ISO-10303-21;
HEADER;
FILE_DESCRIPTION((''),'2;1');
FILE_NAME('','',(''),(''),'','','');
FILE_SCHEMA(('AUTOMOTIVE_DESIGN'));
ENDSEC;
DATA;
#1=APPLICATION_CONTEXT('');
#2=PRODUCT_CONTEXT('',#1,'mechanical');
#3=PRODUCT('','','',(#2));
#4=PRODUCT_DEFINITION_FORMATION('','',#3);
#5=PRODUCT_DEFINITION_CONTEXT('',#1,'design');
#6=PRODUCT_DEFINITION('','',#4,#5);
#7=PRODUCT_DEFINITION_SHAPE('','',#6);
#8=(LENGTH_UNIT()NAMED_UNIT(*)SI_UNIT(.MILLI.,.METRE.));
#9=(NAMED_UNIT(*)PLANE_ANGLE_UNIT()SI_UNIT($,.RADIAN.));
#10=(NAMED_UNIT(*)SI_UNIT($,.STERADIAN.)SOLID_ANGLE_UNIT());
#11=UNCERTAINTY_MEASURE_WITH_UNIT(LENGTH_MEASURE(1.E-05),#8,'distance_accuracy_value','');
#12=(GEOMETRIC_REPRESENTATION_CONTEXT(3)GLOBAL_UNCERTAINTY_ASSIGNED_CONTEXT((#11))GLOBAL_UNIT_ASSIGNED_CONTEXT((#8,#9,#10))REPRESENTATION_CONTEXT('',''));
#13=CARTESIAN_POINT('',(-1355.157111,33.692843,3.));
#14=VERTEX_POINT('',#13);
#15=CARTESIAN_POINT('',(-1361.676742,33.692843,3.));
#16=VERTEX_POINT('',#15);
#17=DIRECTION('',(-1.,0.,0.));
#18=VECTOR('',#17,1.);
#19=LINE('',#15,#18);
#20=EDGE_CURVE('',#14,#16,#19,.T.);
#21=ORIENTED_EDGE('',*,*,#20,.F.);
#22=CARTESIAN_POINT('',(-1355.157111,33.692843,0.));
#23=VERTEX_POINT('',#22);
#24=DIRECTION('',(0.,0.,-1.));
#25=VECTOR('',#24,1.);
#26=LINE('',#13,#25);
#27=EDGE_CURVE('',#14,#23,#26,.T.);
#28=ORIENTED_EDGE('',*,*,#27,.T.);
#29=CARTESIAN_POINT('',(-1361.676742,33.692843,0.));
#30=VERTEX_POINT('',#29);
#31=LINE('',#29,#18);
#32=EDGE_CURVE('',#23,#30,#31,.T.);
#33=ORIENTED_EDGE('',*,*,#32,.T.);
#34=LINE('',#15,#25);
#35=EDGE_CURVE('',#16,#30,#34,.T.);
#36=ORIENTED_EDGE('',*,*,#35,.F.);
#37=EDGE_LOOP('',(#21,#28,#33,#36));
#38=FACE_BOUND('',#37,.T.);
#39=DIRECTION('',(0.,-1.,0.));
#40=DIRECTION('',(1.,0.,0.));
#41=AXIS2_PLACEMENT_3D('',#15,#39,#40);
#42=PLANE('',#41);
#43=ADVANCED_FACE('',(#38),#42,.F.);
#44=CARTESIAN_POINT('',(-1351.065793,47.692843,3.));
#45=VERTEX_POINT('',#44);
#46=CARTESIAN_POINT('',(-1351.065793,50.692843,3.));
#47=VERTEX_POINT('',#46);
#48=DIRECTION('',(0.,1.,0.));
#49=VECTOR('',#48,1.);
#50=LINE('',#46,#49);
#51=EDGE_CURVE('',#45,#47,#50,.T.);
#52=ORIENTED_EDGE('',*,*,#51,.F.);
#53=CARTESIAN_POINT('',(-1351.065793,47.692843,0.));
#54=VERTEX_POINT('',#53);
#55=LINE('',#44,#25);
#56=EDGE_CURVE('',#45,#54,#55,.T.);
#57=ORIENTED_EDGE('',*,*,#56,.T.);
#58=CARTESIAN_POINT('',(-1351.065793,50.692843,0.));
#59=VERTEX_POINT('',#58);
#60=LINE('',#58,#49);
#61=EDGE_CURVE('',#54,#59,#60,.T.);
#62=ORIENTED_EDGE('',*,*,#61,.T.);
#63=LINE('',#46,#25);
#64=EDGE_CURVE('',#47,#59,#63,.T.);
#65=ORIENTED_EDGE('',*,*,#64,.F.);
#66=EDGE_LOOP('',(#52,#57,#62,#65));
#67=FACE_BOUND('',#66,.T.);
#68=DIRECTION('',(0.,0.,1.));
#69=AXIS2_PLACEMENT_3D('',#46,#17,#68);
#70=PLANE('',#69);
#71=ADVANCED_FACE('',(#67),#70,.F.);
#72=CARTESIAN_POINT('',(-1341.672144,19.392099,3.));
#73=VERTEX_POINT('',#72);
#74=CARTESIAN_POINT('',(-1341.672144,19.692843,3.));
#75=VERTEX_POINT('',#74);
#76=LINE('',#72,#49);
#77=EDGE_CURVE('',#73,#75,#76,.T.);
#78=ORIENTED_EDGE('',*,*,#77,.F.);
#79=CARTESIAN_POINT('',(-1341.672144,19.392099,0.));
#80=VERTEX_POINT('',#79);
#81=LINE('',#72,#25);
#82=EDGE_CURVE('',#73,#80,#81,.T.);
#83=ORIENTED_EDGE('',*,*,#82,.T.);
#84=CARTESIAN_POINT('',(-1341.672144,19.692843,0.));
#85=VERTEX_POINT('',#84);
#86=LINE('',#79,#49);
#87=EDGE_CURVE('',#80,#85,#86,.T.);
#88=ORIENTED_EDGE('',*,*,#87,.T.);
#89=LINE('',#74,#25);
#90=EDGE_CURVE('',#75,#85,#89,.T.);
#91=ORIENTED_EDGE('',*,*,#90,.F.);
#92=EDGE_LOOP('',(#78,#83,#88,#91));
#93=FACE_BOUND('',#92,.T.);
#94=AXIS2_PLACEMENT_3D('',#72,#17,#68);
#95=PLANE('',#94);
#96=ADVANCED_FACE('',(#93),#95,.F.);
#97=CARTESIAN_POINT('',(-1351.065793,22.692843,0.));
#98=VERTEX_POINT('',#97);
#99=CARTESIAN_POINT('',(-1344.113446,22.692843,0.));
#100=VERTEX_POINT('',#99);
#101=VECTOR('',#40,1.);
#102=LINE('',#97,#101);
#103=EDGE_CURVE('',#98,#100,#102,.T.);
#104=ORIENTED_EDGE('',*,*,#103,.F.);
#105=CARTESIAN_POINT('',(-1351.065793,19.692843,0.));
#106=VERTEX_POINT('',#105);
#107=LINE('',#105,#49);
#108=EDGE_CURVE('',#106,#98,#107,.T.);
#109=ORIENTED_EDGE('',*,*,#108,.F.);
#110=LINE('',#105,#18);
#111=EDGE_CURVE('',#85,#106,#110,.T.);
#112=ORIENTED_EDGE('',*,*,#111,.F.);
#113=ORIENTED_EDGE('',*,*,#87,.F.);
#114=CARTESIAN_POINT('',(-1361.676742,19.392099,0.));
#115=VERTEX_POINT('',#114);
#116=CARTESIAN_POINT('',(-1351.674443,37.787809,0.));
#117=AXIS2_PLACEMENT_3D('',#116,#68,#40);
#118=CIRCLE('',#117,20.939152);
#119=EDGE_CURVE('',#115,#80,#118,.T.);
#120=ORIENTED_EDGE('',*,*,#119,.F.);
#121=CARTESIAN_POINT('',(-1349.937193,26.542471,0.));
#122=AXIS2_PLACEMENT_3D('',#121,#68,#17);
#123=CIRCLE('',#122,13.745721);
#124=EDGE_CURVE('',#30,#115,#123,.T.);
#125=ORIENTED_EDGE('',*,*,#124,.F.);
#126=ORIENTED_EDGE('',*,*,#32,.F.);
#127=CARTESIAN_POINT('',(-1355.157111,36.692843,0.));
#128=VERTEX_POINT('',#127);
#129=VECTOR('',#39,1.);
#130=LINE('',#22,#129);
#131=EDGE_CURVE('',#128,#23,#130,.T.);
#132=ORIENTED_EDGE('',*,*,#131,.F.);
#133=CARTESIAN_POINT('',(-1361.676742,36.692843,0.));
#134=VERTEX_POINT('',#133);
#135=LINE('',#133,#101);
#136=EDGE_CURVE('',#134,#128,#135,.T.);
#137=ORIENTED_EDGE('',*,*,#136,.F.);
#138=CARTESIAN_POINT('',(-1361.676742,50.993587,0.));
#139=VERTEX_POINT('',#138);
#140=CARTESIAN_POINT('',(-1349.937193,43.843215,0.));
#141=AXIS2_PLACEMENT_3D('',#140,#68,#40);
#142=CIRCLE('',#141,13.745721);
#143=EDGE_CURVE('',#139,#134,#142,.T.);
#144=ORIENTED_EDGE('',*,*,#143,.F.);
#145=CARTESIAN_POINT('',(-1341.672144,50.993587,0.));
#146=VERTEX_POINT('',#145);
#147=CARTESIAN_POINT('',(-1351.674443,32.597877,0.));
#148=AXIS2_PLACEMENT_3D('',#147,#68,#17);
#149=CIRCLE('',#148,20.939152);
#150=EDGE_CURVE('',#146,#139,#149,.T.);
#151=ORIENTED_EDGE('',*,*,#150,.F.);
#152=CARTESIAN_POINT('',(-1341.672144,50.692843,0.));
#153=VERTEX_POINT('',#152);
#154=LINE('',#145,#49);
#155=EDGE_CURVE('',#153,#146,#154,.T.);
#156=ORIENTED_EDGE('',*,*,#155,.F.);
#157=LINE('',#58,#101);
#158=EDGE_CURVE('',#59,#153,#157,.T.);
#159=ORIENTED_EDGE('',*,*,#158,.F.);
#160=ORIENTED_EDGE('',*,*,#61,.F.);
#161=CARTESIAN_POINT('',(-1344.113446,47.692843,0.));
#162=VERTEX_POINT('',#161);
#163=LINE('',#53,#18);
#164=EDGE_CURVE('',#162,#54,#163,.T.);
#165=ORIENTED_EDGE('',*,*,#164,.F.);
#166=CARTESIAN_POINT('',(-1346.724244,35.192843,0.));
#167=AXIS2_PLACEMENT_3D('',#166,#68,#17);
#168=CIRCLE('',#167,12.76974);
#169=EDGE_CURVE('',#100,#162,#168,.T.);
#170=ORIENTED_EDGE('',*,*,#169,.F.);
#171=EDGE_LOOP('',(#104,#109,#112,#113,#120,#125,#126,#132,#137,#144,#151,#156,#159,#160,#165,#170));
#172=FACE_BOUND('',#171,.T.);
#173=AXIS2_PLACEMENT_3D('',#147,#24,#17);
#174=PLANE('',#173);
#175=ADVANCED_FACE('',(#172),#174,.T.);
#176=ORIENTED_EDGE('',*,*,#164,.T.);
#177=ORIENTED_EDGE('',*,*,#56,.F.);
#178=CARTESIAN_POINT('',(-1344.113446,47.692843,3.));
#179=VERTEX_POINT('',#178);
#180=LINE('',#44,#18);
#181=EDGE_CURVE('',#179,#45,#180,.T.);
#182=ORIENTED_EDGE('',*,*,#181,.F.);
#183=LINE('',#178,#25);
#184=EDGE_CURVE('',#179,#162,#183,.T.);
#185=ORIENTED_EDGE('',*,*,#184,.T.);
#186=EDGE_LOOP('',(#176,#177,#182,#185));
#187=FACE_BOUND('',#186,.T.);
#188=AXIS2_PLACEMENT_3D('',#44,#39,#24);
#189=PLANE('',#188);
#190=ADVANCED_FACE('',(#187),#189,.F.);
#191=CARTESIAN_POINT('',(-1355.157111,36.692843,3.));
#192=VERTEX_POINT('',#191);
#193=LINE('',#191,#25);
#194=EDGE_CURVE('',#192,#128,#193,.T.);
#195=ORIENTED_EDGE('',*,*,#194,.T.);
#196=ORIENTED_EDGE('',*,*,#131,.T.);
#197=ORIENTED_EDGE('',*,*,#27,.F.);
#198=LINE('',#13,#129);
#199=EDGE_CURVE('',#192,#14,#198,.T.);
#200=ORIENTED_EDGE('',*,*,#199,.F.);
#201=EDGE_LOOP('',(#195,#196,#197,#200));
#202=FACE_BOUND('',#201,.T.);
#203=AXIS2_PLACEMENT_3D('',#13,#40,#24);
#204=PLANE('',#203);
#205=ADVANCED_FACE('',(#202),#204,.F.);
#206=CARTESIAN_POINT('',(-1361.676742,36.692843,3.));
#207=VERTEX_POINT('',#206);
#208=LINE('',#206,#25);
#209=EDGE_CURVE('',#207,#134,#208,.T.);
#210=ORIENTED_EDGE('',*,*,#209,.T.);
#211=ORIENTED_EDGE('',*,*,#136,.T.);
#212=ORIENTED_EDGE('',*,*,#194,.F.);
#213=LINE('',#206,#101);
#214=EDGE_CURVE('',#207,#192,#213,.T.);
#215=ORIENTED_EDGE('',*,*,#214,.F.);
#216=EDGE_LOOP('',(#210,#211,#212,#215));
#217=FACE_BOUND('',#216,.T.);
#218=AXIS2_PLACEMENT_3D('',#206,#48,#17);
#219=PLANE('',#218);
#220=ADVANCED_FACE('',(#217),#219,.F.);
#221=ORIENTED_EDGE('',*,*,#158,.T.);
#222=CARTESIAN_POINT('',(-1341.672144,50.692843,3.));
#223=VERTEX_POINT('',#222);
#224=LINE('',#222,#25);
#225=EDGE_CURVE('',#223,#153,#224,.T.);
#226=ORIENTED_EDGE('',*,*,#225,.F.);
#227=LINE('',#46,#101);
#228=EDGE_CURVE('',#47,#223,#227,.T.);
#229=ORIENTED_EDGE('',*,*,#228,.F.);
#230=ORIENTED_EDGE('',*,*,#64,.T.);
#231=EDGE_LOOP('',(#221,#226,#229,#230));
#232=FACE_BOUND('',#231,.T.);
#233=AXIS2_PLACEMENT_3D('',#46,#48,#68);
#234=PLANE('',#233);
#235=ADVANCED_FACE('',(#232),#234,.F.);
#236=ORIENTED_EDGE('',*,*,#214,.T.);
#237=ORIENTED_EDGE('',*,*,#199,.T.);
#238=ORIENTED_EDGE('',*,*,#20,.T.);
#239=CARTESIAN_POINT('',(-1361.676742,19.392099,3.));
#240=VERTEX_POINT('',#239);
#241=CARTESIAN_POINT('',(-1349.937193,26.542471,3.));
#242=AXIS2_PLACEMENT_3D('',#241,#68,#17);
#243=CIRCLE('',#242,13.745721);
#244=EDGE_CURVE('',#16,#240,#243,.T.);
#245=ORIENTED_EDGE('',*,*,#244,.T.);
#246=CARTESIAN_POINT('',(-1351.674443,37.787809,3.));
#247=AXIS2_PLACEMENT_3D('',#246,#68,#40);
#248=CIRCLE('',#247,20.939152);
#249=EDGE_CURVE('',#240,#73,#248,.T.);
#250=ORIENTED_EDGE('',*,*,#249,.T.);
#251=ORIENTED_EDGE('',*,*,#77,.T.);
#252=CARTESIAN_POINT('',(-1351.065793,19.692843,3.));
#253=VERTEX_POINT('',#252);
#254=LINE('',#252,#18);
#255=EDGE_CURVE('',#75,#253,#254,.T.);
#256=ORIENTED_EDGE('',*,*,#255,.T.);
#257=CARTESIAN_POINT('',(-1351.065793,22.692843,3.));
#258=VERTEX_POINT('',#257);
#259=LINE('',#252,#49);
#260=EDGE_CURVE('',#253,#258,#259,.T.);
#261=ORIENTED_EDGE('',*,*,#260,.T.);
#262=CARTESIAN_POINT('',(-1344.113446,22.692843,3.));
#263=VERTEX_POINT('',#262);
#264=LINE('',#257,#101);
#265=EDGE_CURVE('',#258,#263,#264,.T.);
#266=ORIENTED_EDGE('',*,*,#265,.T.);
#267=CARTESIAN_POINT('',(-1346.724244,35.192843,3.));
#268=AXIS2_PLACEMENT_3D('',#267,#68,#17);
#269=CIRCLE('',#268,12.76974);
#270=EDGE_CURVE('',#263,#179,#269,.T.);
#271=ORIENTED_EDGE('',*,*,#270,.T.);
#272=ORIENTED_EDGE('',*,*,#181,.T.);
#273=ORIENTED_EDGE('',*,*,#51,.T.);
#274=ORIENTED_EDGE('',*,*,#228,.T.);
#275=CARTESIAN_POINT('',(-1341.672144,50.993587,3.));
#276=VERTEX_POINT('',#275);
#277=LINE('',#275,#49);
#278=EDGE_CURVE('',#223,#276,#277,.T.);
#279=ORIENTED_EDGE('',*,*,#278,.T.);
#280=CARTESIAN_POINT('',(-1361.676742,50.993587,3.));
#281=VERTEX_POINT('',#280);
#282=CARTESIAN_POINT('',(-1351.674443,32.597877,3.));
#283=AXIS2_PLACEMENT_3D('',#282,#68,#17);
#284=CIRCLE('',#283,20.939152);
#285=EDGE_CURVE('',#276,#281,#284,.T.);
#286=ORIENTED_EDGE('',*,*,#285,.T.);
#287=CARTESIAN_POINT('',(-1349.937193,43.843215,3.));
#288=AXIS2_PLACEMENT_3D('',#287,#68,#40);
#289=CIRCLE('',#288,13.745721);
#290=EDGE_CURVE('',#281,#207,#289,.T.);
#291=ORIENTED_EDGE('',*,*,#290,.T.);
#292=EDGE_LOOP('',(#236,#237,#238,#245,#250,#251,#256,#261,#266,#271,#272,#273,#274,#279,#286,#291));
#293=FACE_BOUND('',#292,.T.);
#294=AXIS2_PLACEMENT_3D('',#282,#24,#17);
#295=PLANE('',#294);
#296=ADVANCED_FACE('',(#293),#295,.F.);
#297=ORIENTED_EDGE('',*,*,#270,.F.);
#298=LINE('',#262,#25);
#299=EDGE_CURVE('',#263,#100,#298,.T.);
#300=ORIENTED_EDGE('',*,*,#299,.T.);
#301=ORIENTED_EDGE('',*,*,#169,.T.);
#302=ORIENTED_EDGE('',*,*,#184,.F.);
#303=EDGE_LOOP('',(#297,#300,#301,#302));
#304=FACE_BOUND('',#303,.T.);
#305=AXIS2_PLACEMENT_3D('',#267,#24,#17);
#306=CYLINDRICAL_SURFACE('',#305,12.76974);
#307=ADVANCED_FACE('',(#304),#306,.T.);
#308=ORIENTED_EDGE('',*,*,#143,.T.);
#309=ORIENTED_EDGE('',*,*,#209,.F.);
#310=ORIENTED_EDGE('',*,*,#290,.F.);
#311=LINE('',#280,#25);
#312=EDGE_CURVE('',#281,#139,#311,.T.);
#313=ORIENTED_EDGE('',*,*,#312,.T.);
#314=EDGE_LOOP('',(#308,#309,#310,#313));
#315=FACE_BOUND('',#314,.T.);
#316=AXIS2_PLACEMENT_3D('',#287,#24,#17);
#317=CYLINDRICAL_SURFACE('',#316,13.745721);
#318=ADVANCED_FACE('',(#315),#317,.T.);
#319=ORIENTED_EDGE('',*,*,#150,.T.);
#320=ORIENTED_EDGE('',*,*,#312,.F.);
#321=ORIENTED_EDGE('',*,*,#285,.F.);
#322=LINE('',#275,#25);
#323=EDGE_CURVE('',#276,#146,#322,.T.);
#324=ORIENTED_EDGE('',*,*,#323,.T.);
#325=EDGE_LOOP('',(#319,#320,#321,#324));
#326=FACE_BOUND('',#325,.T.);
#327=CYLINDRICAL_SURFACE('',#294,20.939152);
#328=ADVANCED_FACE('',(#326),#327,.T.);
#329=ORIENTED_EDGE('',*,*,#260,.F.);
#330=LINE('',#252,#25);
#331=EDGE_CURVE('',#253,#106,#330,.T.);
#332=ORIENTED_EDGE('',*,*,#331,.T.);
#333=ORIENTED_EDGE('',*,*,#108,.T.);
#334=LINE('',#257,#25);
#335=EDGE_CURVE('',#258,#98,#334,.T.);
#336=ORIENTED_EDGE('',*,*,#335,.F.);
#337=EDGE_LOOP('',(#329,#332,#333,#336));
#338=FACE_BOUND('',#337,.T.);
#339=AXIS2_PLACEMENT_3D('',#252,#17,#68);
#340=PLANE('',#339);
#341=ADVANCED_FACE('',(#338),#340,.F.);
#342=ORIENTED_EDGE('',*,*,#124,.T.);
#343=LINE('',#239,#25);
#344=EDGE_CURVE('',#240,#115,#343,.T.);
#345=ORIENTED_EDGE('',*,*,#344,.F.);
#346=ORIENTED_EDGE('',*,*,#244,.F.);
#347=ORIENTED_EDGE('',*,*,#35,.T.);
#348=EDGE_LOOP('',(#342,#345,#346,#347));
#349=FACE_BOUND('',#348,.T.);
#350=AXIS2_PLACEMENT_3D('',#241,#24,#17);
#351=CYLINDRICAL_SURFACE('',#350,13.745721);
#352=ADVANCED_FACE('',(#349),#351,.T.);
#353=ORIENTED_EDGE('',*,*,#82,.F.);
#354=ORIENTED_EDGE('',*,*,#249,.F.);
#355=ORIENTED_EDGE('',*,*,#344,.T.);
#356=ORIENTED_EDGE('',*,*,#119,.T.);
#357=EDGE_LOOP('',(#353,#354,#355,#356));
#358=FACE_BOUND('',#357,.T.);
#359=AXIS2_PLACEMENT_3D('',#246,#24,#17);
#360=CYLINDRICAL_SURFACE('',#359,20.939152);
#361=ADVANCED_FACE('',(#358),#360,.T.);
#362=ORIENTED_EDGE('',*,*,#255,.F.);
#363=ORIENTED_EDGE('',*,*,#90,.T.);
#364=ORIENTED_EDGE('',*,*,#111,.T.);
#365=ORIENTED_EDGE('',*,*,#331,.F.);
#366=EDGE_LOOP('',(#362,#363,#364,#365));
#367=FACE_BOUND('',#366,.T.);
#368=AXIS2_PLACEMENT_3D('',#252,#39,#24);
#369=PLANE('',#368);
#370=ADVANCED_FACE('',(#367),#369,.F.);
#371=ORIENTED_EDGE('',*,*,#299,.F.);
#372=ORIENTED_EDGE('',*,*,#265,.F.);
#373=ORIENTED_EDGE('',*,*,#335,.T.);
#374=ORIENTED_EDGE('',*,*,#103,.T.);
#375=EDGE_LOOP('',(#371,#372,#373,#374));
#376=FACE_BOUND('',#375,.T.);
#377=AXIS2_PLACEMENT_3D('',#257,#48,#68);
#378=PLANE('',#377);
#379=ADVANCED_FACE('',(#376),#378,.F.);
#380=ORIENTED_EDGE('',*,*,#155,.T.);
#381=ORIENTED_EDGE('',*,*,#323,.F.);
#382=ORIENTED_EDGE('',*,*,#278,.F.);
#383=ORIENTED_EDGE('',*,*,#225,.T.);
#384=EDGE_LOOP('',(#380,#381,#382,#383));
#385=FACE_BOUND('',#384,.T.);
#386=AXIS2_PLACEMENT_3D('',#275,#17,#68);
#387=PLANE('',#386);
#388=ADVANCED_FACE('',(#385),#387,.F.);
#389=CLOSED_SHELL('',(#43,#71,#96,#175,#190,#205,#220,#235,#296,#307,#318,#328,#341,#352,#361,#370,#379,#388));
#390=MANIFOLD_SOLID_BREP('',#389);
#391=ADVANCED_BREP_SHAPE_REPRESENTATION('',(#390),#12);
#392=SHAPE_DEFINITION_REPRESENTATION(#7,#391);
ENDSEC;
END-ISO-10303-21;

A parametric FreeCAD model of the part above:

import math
import FreeCAD as App
import Part
import Sketcher

doc = App.newDocument("Part")
body = doc.addObject("PartDesign::Body", "Body")

sketch1 = body.newObject("Sketcher::SketchObject", "Sketch")
sketch1.AttachmentSupport = (doc.getObject("XY_Plane"), [""])
sketch1.MapMode = "FlatFace"
sketch1.addGeometry([
    Part.LineSegment(App.Vector(-1355.157111, 33.692843, 0), App.Vector(-1361.676742, 33.692843, 0)),
    Part.ArcOfCircle(Part.Circle(App.Vector(-1349.937193, 26.542471, 0), App.Vector(0, 0, 1), 13.745721), math.radians(148.655075), math.radians(211.344925)),
    Part.ArcOfCircle(Part.Circle(App.Vector(-1351.674443, 37.787809, 0), App.Vector(0, 0, 1), 20.939152), math.radians(-118.534252), math.radians(-61.465748)),
    Part.LineSegment(App.Vector(-1341.672144, 19.392099, 0), App.Vector(-1341.672144, 19.692843, 0)),
    Part.LineSegment(App.Vector(-1341.672144, 19.692843, 0), App.Vector(-1351.065793, 19.692843, 0)),
    Part.LineSegment(App.Vector(-1351.065793, 19.692843, 0), App.Vector(-1351.065793, 22.692843, 0)),
    Part.LineSegment(App.Vector(-1351.065793, 22.692843, 0), App.Vector(-1344.113446, 22.692843, 0)),
    Part.ArcOfCircle(Part.Circle(App.Vector(-1346.724244, 35.192843, 0), App.Vector(0, 0, 1), 12.76974), math.radians(-78.202582), math.radians(78.202582)),
    Part.LineSegment(App.Vector(-1344.113446, 47.692843, 0), App.Vector(-1351.065793, 47.692843, 0)),
    Part.LineSegment(App.Vector(-1351.065793, 47.692843, 0), App.Vector(-1351.065793, 50.692843, 0)),
    Part.LineSegment(App.Vector(-1351.065793, 50.692843, 0), App.Vector(-1341.672144, 50.692843, 0)),
    Part.LineSegment(App.Vector(-1341.672144, 50.692843, 0), App.Vector(-1341.672144, 50.993587, 0)),
    Part.ArcOfCircle(Part.Circle(App.Vector(-1351.674443, 32.597877, 0), App.Vector(0, 0, 1), 20.939152), math.radians(61.465748), math.radians(118.534252)),
    Part.ArcOfCircle(Part.Circle(App.Vector(-1349.937193, 43.843215, 0), App.Vector(0, 0, 1), 13.745721), math.radians(148.655075), math.radians(211.344925)),
    Part.LineSegment(App.Vector(-1361.676742, 36.692843, 0), App.Vector(-1355.157111, 36.692843, 0)),
    Part.LineSegment(App.Vector(-1355.157111, 36.692843, 0), App.Vector(-1355.157111, 33.692843, 0)),
], False)
sketch1.addConstraint([
    Sketcher.Constraint("Coincident", 0, 2, 1, 1),
    Sketcher.Constraint("Coincident", 1, 2, 2, 1),
    Sketcher.Constraint("Coincident", 2, 2, 3, 1),
    Sketcher.Constraint("Coincident", 3, 2, 4, 1),
    Sketcher.Constraint("Coincident", 4, 2, 5, 1),
    Sketcher.Constraint("Coincident", 5, 2, 6, 1),
    Sketcher.Constraint("Coincident", 6, 2, 7, 1),
    Sketcher.Constraint("Coincident", 7, 2, 8, 1),
    Sketcher.Constraint("Coincident", 8, 2, 9, 1),
    Sketcher.Constraint("Coincident", 9, 2, 10, 1),
    Sketcher.Constraint("Coincident", 10, 2, 11, 1),
    Sketcher.Constraint("Coincident", 11, 2, 12, 1),
    Sketcher.Constraint("Coincident", 12, 2, 13, 1),
    Sketcher.Constraint("Coincident", 13, 2, 14, 1),
    Sketcher.Constraint("Coincident", 14, 2, 15, 1),
    Sketcher.Constraint("Coincident", 15, 2, 0, 1),
    Sketcher.Constraint("Horizontal", 0),
    Sketcher.Constraint("Vertical", 3),
    Sketcher.Constraint("Horizontal", 4),
    Sketcher.Constraint("Vertical", 5),
    Sketcher.Constraint("Horizontal", 6),
    Sketcher.Constraint("Horizontal", 8),
    Sketcher.Constraint("Vertical", 9),
    Sketcher.Constraint("Horizontal", 10),
    Sketcher.Constraint("Vertical", 11),
    Sketcher.Constraint("Horizontal", 14),
    Sketcher.Constraint("Vertical", 15),
    Sketcher.Constraint("Equal", 2, 12),
    Sketcher.Constraint("Equal", 1, 13),
    Sketcher.Constraint("Horizontal", 1, 2, 2, 2),
    Sketcher.Constraint("Horizontal", 11, 2, 12, 2),
    Sketcher.Constraint("Vertical", 2, 3, 12, 3),
    Sketcher.Constraint("Vertical", 1, 3, 13, 3),
    Sketcher.Constraint("Vertical", 0, 2, 1, 2),
    Sketcher.Constraint("Vertical", 6, 2, 7, 2),
    Sketcher.Constraint("Vertical", 5, 2, 8, 2),
    Sketcher.Constraint("Vertical", 3, 2, 10, 2),
    Sketcher.Constraint("Vertical", 12, 2, 13, 2),
    Sketcher.Constraint("Equal", 5, 9),
    Sketcher.Constraint("Equal", 3, 11),
    Sketcher.Constraint("Equal", 9, 15),
    Sketcher.Constraint("DistanceY", 5, 1, 5, 2, 3.0),
    Sketcher.Constraint("DistanceY", 3, 2, 7, 3, 15.5),
    Sketcher.Constraint("Radius", 1, 13.745721),
    Sketcher.Constraint("Radius", 7, 12.76974),
    Sketcher.Constraint("Radius", 2, 20.939152),
    Sketcher.Constraint("DistanceX", 0, 2, 0, 1, 6.519631),
    Sketcher.Constraint("DistanceX", 4, 2, 4, 1, 9.393649),
    Sketcher.Constraint("DistanceY", -1, 1, 1, 2, 19.392099),
    Sketcher.Constraint("DistanceX", 2, 3, 7, 3, 4.950199),
    Sketcher.Constraint("DistanceX", 0, 2, 12, 3, 10.002299),
    Sketcher.Constraint("DistanceX", 4, 2, 1, 3, 1.1286),
    Sketcher.Constraint("DistanceX", 14, 2, -1, 1, 1355.157111),
])
pad1 = body.newObject("PartDesign::Pad", "Pad")
pad1.Profile = sketch1
pad1.Length = 3

doc.recompute()
